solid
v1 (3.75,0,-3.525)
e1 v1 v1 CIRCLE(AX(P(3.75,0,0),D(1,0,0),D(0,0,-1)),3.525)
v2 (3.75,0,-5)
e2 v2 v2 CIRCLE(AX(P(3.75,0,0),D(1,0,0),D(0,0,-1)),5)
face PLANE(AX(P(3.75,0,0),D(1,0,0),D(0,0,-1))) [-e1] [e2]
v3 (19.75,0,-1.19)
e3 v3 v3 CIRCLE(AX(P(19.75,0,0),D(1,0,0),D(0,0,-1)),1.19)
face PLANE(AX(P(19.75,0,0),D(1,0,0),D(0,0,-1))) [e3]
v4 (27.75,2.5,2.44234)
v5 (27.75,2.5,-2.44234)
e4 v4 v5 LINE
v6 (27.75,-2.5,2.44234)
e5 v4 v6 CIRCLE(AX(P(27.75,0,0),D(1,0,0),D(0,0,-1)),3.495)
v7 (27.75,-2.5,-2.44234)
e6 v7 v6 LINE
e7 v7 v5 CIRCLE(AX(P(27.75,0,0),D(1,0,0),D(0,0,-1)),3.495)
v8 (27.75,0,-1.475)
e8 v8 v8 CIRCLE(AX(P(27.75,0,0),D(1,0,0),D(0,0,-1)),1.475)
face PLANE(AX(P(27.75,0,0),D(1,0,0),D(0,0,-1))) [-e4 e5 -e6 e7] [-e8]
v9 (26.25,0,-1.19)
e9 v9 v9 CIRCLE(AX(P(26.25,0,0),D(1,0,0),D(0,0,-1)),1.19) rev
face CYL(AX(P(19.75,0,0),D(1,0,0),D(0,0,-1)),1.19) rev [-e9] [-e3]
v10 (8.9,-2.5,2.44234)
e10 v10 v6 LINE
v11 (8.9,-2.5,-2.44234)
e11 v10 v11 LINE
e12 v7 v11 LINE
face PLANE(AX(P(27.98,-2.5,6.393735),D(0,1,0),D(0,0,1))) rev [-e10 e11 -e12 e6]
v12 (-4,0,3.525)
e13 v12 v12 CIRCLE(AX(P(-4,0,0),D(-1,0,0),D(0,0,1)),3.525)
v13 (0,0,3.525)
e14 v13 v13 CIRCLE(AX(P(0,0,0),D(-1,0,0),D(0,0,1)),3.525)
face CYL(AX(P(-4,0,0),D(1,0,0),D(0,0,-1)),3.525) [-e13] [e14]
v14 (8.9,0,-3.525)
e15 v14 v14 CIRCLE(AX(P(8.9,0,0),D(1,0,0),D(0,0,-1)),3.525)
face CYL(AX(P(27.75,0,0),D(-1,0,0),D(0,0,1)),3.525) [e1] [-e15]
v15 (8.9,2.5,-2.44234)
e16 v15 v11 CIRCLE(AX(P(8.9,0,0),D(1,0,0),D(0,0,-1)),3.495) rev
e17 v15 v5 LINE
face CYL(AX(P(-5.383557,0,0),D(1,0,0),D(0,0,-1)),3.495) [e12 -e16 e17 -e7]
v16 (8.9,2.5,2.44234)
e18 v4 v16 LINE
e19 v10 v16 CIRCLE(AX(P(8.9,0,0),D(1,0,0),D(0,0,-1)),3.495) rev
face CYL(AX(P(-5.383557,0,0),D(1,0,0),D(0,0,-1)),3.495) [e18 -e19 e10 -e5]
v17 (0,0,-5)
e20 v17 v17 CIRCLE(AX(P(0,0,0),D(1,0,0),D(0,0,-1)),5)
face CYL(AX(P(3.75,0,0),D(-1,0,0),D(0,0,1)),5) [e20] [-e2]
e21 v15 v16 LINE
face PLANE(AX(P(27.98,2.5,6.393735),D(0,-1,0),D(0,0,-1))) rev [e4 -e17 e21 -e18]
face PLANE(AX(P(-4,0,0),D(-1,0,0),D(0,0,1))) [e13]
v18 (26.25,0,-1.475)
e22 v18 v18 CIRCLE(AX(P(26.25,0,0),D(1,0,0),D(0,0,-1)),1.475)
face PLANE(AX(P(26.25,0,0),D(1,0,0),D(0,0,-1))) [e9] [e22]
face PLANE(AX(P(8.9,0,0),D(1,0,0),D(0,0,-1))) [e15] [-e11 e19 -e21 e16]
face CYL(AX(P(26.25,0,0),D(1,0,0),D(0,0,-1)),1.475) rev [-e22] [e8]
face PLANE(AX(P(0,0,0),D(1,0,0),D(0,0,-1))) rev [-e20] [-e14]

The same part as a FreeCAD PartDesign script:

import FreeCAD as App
import Part
import Sketcher

V = App.Vector

doc = App.newDocument("Part")
body = doc.addObject("PartDesign::Body", "Body")

sketch1 = body.newObject("Sketcher::SketchObject", "Sketch")
sketch1.AttachmentSupport = (doc.getObject("YZ_Plane"), [""])
sketch1.MapMode = "FlatFace"
sketch1.addGeometry(Part.Circle(V(0, 0, 0), V(0, 0, 1), 5), False)
sketch1.addConstraint([
    Sketcher.Constraint("Coincident", 0, 3, -1, 1),
    Sketcher.Constraint("Diameter", 0, 10.0),
])
pad1 = body.newObject("PartDesign::Pad", "Pad")
pad1.Profile = sketch1
pad1.Length = 3.75

sketch2 = body.newObject("Sketcher::SketchObject", "Sketch001")
sketch2.AttachmentSupport = (doc.getObject("YZ_Plane"), [""])
sketch2.MapMode = "FlatFace"
sketch2.addGeometry(Part.Circle(V(0, 0, 0), V(0, 0, 1), 3.5), False)
sketch2.addConstraint([
    Sketcher.Constraint("Coincident", 0, 3, -1, 1),
    Sketcher.Constraint("Diameter", 0, 7.05),
])
pad2 = body.newObject("PartDesign::Pad", "Pad001")
pad2.Profile = sketch2
pad2.Length = 4
pad2.Reversed = True

sketch3 = body.newObject("Sketcher::SketchObject", "Sketch002")
sketch3.AttachmentSupport = (doc.getObject("YZ_Plane"), [""])
sketch3.MapMode = "FlatFace"
sketch3.AttachmentOffset = App.Placement(V(0, 0, 27.75), App.Rotation())
sketch3.addGeometry(Part.Circle(V(0, 0, 0), V(0, 0, 1), 3.5), False)
sketch3.addConstraint([
    Sketcher.Constraint("Coincident", 0, 3, -1, 1),
    Sketcher.Constraint("Diameter", 0, 7.05),
])
pad3 = body.newObject("PartDesign::Pad", "Pad002")
pad3.Profile = sketch3
pad3.Length = 24
pad3.Reversed = True

sketch4 = body.newObject("Sketcher::SketchObject", "Sketch003")
sketch4.AttachmentSupport = (doc.getObject("YZ_Plane"), [""])
sketch4.MapMode = "FlatFace"
sketch4.AttachmentOffset = App.Placement(V(0, 0, 8.9), App.Rotation())
sketch4.addGeometry([
    Part.LineSegment(V(9, 9, 0), V(-9, 9, 0)),
    Part.LineSegment(V(-9, 9, 0), V(-9, -9, 0)),
    Part.LineSegment(V(-9, -9, 0), V(9, -9, 0)),
    Part.LineSegment(V(9, -9, 0), V(9, 9, 0)),
    Part.LineSegment(V(-2, -6, 0), V(-2, 6, 0)),
    Part.LineSegment(V(-2, 6, 0), V(2, 6, 0)),
    Part.LineSegment(V(2, 6, 0), V(2, -6, 0)),
    Part.LineSegment(V(2, -6, 0), V(-2, -6, 0)),
], False)
sketch4.addConstraint([
    Sketcher.Constraint("Coincident", 0, 2, 1, 1),
    Sketcher.Constraint("Coincident", 1, 2, 2, 1),
    Sketcher.Constraint("Coincident", 2, 2, 3, 1),
    Sketcher.Constraint("Coincident", 3, 2, 0, 1),
    Sketcher.Constraint("Coincident", 4, 2, 5, 1),
    Sketcher.Constraint("Coincident", 5, 2, 6, 1),
    Sketcher.Constraint("Coincident", 6, 2, 7, 1),
    Sketcher.Constraint("Coincident", 7, 2, 4, 1),
    Sketcher.Constraint("Horizontal", 0),
    Sketcher.Constraint("Vertical", 1),
    Sketcher.Constraint("Horizontal", 2),
    Sketcher.Constraint("Vertical", 3),
    Sketcher.Constraint("Vertical", 4),
    Sketcher.Constraint("Horizontal", 5),
    Sketcher.Constraint("Vertical", 6),
    Sketcher.Constraint("Horizontal", 7),
    Sketcher.Constraint("Symmetric", 0, 2, 2, 2, -1, 1),
    Sketcher.Constraint("Symmetric", 4, 2, 6, 2, -1, 1),
    Sketcher.Constraint("Equal", 2, 1),
    Sketcher.Constraint("DistanceX", 5, 1, 5, 2, 5.0),
    Sketcher.Constraint("DistanceX", 0, 2, 0, 1, 18.952),
    Sketcher.Constraint("DistanceY", 4, 1, 4, 2, 12.787471),
])
pocket1 = body.newObject("PartDesign::Pocket", "Pocket")
pocket1.Profile = sketch4
pocket1.Length = 19.08
pocket1.Reversed = True

sketch5 = body.newObject("Sketcher::SketchObject", "Sketch004")
sketch5.AttachmentSupport = (doc.getObject("YZ_Plane"), [""])
sketch5.MapMode = "FlatFace"
sketch5.AttachmentOffset = App.Placement(V(0, 0, 27.75), App.Rotation())
sketch5.addGeometry(Part.Circle(V(0, 0, 0), V(0, 0, 1), 1.2), False)
sketch5.addConstraint([
    Sketcher.Constraint("Coincident", 0, 3, -1, 1),
    Sketcher.Constraint("Diameter", 0, 2.38),
])
pocket2 = body.newObject("PartDesign::Pocket", "Pocket001")
pocket2.Profile = sketch5
pocket2.Length = 8

sketch6 = body.newObject("Sketcher::SketchObject", "Sketch005")
sketch6.AttachmentSupport = (doc.getObject("YZ_Plane"), [""])
sketch6.MapMode = "FlatFace"
sketch6.AttachmentOffset = App.Placement(V(0, 0, 27.75), App.Rotation())
sketch6.addGeometry(Part.Circle(V(0, 0, 0), V(0, 0, 1), 1.5), False)
sketch6.addConstraint([
    Sketcher.Constraint("Coincident", 0, 3, -1, 1),
    Sketcher.Constraint("Diameter", 0, 2.95),
])
pocket3 = body.newObject("PartDesign::Pocket", "Pocket002")
pocket3.Profile = sketch6
pocket3.Length = 1.5

sketch7 = body.newObject("Sketcher::SketchObject", "Sketch006")
sketch7.AttachmentSupport = (doc.getObject("YZ_Plane"), [""])
sketch7.MapMode = "FlatFace"
sketch7.AttachmentOffset = App.Placement(V(0, 0, 27.75), App.Rotation())
sketch7.addGeometry([
    Part.LineSegment(V(9.5, 9.5, 0), V(-9.5, 9.5, 0)),
    Part.LineSegment(V(-9.5, 9.5, 0), V(-9.5, -9.5, 0)),
    Part.LineSegment(V(-9.5, -9.5, 0), V(9.5, -9.5, 0)),
    Part.LineSegment(V(9.5, -9.5, 0), V(9.5, 9.5, 0)),
    Part.Circle(V(0, 0, 0), V(0, 0, 1), 3.5),
], False)
sketch7.addConstraint([
    Sketcher.Constraint("Coincident", 0, 2, 1, 1),
    Sketcher.Constraint("Coincident", 1, 2, 2, 1),
    Sketcher.Constraint("Coincident", 2, 2, 3, 1),
    Sketcher.Constraint("Coincident", 3, 2, 0, 1),
    Sketcher.Constraint("Horizontal", 0),
    Sketcher.Constraint("Vertical", 1),
    Sketcher.Constraint("Horizontal", 2),
    Sketcher.Constraint("Vertical", 3),
    Sketcher.Constraint("Coincident", 4, 3, -1, 1),
    Sketcher.Constraint("Symmetric", 0, 2, 2, 2, -1, 1),
    Sketcher.Constraint("Equal", 2, 1),
    Sketcher.Constraint("Diameter", 4, 6.99),
    Sketcher.Constraint("DistanceX", 0, 2, 0, 1, 18.952),
])
pocket4 = body.newObject("PartDesign::Pocket", "Pocket003")
pocket4.Profile = sketch7
pocket4.Length = 18.85

doc.recompute()
